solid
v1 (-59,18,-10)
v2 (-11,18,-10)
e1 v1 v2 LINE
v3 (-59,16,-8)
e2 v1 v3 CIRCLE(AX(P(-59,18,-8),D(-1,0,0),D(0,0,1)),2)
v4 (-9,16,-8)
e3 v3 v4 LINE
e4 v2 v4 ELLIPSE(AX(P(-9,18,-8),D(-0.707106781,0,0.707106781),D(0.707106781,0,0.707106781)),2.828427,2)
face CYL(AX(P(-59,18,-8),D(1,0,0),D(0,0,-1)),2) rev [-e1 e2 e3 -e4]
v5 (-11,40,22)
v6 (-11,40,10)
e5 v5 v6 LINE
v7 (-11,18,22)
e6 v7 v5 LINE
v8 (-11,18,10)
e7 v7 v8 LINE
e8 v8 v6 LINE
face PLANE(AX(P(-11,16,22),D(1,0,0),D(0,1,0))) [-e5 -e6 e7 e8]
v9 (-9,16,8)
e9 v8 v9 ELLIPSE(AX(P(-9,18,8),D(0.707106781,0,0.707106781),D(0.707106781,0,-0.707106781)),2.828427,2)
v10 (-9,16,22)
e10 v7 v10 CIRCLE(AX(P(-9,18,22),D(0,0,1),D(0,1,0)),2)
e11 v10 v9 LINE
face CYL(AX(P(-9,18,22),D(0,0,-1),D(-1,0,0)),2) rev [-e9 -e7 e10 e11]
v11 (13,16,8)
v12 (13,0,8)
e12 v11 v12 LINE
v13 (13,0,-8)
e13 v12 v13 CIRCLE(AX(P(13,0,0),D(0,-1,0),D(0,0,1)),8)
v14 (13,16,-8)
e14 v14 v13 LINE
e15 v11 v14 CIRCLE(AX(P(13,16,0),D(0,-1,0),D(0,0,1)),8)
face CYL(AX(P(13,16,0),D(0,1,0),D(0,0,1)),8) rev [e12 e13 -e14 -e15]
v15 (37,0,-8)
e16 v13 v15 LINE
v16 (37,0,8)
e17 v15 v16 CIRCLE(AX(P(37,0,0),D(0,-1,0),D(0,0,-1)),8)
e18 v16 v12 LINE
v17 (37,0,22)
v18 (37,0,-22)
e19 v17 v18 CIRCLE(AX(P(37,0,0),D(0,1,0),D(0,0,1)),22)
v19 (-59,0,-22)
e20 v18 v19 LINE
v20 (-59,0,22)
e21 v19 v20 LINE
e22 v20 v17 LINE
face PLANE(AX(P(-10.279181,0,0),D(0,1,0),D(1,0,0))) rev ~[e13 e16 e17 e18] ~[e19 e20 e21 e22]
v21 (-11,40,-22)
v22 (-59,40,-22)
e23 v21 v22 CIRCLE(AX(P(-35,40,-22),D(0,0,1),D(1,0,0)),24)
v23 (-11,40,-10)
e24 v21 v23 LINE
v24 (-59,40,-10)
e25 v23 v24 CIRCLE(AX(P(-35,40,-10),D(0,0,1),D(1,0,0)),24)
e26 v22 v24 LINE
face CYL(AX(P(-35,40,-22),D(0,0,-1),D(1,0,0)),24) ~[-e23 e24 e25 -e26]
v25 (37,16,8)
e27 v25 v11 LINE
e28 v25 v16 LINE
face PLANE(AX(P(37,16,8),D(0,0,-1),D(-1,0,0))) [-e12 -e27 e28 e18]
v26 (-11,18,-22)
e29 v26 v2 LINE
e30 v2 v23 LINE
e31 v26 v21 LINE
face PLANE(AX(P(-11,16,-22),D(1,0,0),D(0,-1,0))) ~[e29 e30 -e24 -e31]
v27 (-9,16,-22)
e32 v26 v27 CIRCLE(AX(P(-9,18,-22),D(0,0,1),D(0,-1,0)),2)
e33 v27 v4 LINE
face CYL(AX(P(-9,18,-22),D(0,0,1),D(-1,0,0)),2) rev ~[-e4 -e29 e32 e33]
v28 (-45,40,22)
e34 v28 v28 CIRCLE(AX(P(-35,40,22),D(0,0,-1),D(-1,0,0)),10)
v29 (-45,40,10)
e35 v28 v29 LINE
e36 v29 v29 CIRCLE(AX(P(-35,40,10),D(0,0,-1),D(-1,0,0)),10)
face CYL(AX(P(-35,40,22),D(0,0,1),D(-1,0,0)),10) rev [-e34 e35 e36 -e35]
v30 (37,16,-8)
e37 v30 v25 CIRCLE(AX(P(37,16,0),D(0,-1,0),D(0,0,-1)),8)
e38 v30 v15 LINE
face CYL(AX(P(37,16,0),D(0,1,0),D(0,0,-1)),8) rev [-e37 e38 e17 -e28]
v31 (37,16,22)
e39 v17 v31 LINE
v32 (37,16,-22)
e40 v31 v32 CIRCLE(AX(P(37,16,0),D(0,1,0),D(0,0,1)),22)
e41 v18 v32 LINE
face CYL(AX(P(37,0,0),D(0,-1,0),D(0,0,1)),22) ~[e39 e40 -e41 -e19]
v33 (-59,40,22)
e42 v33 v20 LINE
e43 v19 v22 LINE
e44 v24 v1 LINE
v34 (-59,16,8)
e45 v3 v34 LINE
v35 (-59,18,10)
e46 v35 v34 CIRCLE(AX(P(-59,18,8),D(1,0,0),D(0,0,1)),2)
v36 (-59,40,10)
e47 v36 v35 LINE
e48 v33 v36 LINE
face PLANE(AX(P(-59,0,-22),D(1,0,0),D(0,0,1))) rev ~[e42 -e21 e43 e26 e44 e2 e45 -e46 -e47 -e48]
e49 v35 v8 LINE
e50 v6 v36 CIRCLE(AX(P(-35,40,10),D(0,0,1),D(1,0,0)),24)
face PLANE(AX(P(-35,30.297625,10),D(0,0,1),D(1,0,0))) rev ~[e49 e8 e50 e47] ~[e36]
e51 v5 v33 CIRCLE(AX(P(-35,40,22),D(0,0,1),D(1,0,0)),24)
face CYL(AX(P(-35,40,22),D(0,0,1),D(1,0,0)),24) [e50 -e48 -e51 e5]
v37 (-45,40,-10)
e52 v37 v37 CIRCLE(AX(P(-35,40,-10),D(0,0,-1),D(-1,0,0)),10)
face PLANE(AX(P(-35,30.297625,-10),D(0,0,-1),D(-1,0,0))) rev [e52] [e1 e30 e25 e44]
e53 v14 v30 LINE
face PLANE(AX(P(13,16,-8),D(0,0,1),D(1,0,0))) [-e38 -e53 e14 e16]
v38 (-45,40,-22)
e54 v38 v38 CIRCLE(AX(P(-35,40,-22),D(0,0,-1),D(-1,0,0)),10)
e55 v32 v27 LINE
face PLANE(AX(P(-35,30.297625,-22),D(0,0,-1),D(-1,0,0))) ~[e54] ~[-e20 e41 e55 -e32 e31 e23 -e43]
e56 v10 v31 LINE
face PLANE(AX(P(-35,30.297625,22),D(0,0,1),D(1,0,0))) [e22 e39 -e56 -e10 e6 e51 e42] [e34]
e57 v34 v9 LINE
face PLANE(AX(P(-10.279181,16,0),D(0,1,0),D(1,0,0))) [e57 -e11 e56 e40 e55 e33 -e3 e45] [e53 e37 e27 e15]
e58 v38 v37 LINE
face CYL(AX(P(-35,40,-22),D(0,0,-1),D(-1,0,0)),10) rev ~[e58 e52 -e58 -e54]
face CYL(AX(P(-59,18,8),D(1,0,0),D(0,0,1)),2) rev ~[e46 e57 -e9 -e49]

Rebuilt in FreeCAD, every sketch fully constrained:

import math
import FreeCAD as App
import Part
import Sketcher

V = App.Vector


def edges_at(feature, points):
    """Names of the edges that pass closest to the given points."""
    edges = feature.Shape.Edges
    near = lambda p: min(range(len(edges)), key=lambda i: edges[i].distToShape(Part.Vertex(*p))[0])
    return sorted({f"Edge{near(p) + 1}" for p in points})

doc = App.newDocument("Part")
body = doc.addObject("PartDesign::Body", "Body")

sketch1 = body.newObject("Sketcher::SketchObject", "Sketch")
sketch1.AttachmentSupport = (doc.getObject("XZ_Plane"), [""])
sketch1.MapMode = "FlatFace"
sketch1.addGeometry(Part.LineSegment(V(37, -22, 0), V(-59, -22, 0)), False)
sketch1.addGeometry(Part.LineSegment(V(-59, -22, 0), V(-59, 22, 0)), False)
sketch1.addGeometry(Part.LineSegment(V(-59, 22, 0), V(37, 22, 0)), False)
sketch1.addGeometry(Part.ArcOfCircle(Part.Circle(V(37, 0, 0), V(0, 0, 1), 22), math.radians(-90), math.radians(90)), False)
sketch1.addConstraint(Sketcher.Constraint("Coincident", 0, 2, 1, 1))
sketch1.addConstraint(Sketcher.Constraint("Coincident", 1, 2, 2, 1))
sketch1.addConstraint(Sketcher.Constraint("Tangent", 2, 2, 3, 2))
sketch1.addConstraint(Sketcher.Constraint("Tangent", 3, 1, 0, 1))
sketch1.addConstraint(Sketcher.Constraint("Horizontal", 0))
sketch1.addConstraint(Sketcher.Constraint("Vertical", 1))
sketch1.addConstraint(Sketcher.Constraint("Horizontal", 2))
sketch1.addConstraint(Sketcher.Constraint("PointOnObject", 3, 3, -1))
sketch1.addConstraint(Sketcher.Constraint("Radius", 3, 22.0))
sketch1.addConstraint(Sketcher.Constraint("DistanceX", 0, 2, 0, 1, 96.0))
sketch1.addConstraint(Sketcher.Constraint("DistanceX", -1, 1, 3, 3, 37.0))
pad1 = body.newObject("PartDesign::Pad", "Pad")
pad1.Profile = sketch1
pad1.Length = 16
pad1.Reversed = True

sketch2 = body.newObject("Sketcher::SketchObject", "Sketch001")
sketch2.AttachmentSupport = (doc.getObject("XZ_Plane"), [""])
sketch2.MapMode = "FlatFace"
sketch2.AttachmentOffset = App.Placement(V(0, 0, -16), App.Rotation())
sketch2.addGeometry(Part.LineSegment(V(13, 8, 0), V(37, 8, 0)), False)
sketch2.addGeometry(Part.ArcOfCircle(Part.Circle(V(37, 0, 0), V(0, 0, 1), 8), math.radians(-90), math.radians(90)), False)
sketch2.addGeometry(Part.LineSegment(V(37, -8, 0), V(13, -8, 0)), False)
sketch2.addGeometry(Part.ArcOfCircle(Part.Circle(V(13, 0, 0), V(0, 0, 1), 8), math.radians(90), math.radians(270)), False)
sketch2.addConstraint(Sketcher.Constraint("Tangent", 0, 2, 1, 2))
sketch2.addConstraint(Sketcher.Constraint("Tangent", 1, 1, 2, 1))
sketch2.addConstraint(Sketcher.Constraint("Tangent", 2, 2, 3, 2))
sketch2.addConstraint(Sketcher.Constraint("Tangent", 3, 1, 0, 1))
sketch2.addConstraint(Sketcher.Constraint("Horizontal", 0))
sketch2.addConstraint(Sketcher.Constraint("Horizontal", 2))
sketch2.addConstraint(Sketcher.Constraint("PointOnObject", 1, 3, -1))
sketch2.addConstraint(Sketcher.Constraint("Radius", 1, 8.0))
sketch2.addConstraint(Sketcher.Constraint("DistanceX", 0, 1, 0, 2, 24.0))
sketch2.addConstraint(Sketcher.Constraint("DistanceX", -1, 1, 1, 3, 37.0))
pocket1 = body.newObject("PartDesign::Pocket", "Pocket")
pocket1.Profile = sketch2
pocket1.Length = 16
pocket1.Reversed = True

sketch3 = body.newObject("Sketcher::SketchObject", "Sketch002")
sketch3.AttachmentSupport = (doc.getObject("XY_Plane"), [""])
sketch3.MapMode = "FlatFace"
sketch3.AttachmentOffset = App.Placement(V(0, 0, 22), App.Rotation())
sketch3.addGeometry(Part.LineSegment(V(-11, 16, 0), V(-11, 40, 0)), False)
sketch3.addGeometry(Part.ArcOfCircle(Part.Circle(V(-35, 40, 0), V(0, 0, 1), 24), math.radians(0), math.radians(180)), False)
sketch3.addGeometry(Part.LineSegment(V(-59, 40, 0), V(-59, 16, 0)), False)
sketch3.addGeometry(Part.LineSegment(V(-59, 16, 0), V(-11, 16, 0)), False)
sketch3.addGeometry(Part.Circle(V(-35, 40, 0), V(0, 0, 1), 10), False)
sketch3.addConstraint(Sketcher.Constraint("Tangent", 0, 2, 1, 1))
sketch3.addConstraint(Sketcher.Constraint("Tangent", 1, 2, 2, 1))
sketch3.addConstraint(Sketcher.Constraint("Coincident", 2, 2, 3, 1))
sketch3.addConstraint(Sketcher.Constraint("Coincident", 3, 2, 0, 1))
sketch3.addConstraint(Sketcher.Constraint("Vertical", 0))
sketch3.addConstraint(Sketcher.Constraint("Vertical", 2))
sketch3.addConstraint(Sketcher.Constraint("Horizontal", 3))
sketch3.addConstraint(Sketcher.Constraint("Coincident", 4, 3, 1, 3))
sketch3.addConstraint(Sketcher.Constraint("Diameter", 4, 20.0))
sketch3.addConstraint(Sketcher.Constraint("Radius", 1, 24.0))
sketch3.addConstraint(Sketcher.Constraint("DistanceY", 0, 1, 0, 2, 24.0))
sketch3.addConstraint(Sketcher.Constraint("DistanceX", 1, 3, -1, 1, 35.0))
sketch3.addConstraint(Sketcher.Constraint("DistanceY", -1, 1, 1, 3, 40.0))
pad2 = body.newObject("PartDesign::Pad", "Pad001")
pad2.Profile = sketch3
pad2.Length = 12
pad2.Reversed = True
doc.recompute()

mirrored = body.newObject("PartDesign::Mirrored", "Mirrored")
mirrored.Originals = [pad2]
mirrored.MirrorPlane = (doc.getObject("XY_Plane"), [""])
body.Tip = mirrored
doc.recompute()

fillet = body.newObject("PartDesign::Fillet", "Fillet")
fillet.Base = (mirrored, edges_at(mirrored, [
    (-11, 16, 16),
    (-35, 16, 10),
    (-35, 16, -10),
    (-11, 16, -16),
]))
fillet.Radius = 2

doc.recompute()
